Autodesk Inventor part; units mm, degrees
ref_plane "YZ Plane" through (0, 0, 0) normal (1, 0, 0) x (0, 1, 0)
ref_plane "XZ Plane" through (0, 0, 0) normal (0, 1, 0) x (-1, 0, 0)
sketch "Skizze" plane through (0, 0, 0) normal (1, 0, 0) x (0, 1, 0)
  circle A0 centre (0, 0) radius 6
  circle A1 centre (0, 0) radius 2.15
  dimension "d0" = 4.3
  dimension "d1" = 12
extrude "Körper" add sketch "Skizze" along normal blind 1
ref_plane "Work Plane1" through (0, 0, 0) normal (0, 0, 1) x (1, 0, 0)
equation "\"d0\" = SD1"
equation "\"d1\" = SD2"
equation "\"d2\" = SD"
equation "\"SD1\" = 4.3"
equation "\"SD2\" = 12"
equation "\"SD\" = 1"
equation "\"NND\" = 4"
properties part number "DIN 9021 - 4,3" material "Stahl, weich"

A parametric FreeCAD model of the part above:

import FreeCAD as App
import Part
import Sketcher

V = App.Vector
Q = App.Units.Quantity

doc = App.newDocument("Part")
body = doc.addObject("PartDesign::Body", "Body")

sketch1 = doc.addObject("Sketcher::SketchObject", "Sketch")
body.addObject(sketch1)
sketch1.AttachmentSupport = (doc.YZ_Plane, [""])
sketch1.MapMode = "FlatFace"
sketch1.addGeometry([
    Part.Circle(V(0, 0, 0), V(0, 0, 1), 6),
    Part.Circle(V(0, 0, 0), V(0, 0, 1), 2.15),
], False)
sketch1.addConstraint([
    Sketcher.Constraint("Coincident", 0, 3, -1, 1),
    Sketcher.Constraint("Coincident", 1, 3, -1, 1),
    Sketcher.Constraint("Diameter", 0, Q("12 mm")),
    Sketcher.Constraint("Diameter", 1, Q("4.3 mm")),
])
pad1 = doc.addObject("PartDesign::Pad", "Pad")
body.addObject(pad1)
pad1.Profile = sketch1
pad1.Length = 1

doc.recompute()
